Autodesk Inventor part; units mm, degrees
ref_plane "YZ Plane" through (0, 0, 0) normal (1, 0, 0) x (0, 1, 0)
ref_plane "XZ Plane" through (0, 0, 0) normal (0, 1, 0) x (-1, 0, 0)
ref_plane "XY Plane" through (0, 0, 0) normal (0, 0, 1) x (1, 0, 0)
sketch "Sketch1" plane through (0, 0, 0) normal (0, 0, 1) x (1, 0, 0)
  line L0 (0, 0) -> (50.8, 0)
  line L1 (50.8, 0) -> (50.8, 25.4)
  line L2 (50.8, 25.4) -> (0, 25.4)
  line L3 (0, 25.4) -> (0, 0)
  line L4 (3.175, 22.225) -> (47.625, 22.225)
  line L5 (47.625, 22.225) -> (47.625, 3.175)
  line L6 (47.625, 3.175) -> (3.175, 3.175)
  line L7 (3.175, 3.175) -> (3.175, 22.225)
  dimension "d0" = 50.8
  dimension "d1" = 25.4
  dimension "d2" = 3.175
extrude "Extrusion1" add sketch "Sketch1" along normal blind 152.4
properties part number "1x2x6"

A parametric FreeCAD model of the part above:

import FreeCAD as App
import Part
import Sketcher

V = App.Vector
Q = App.Units.Quantity


def add_polygon(sketch, points):
    """Adds a closed chain of lines whose ends are joined by coincident constraints."""
    first, n = sketch.GeometryCount, len(points)
    for a, b in zip(points, points[1:] + points[:1]):
        sketch.addGeometry(Part.LineSegment(App.Vector(*a, 0), App.Vector(*b, 0)), False)
    for i in range(n):
        sketch.addConstraint(Sketcher.Constraint("Coincident", first + i, 2, first + (i + 1) % n, 1))

doc = App.newDocument("Part")
params = doc.addObject("Spreadsheet::Sheet", "Params")
for row, (alias, value) in enumerate([
    ("sketch1_width", "2 in"),
    ("sketch1_height", "1 in"),
    ("pad1_length", "6 in"),
], start=1):
    params.set(f"A{row}", alias)
    params.set(f"B{row}", "=" + value)
    params.setAlias(f"B{row}", alias)

body = doc.addObject("PartDesign::Body", "Body")

# Sketch on XY plane
sketch1 = doc.addObject("Sketcher::SketchObject", "Sketch")
body.addObject(sketch1)
sketch1.AttachmentSupport = (doc.XY_Plane, [""])
sketch1.MapMode = "FlatFace"
add_polygon(sketch1, [(0, 25.4), (0, 0), (50.8, 0), (50.8, 25.4)])  # lines 0-3
add_polygon(sketch1, [(3.175, 3.175), (3.175, 22.225), (47.625, 22.225), (47.625, 3.175)])  # lines 4-7
sketch1.addConstraint([
    Sketcher.Constraint("Vertical", 0),
    Sketcher.Constraint("Horizontal", 1),
    Sketcher.Constraint("Vertical", 2),
    Sketcher.Constraint("Horizontal", 3),
    Sketcher.Constraint("Vertical", 4),
    Sketcher.Constraint("Horizontal", 5),
    Sketcher.Constraint("Vertical", 6),
    Sketcher.Constraint("Horizontal", 7),
    Sketcher.Constraint("Coincident", 0, 2, -1, 1),
    Sketcher.Constraint("DistanceX", 1, 1, 1, 2, Q("2 in")),
    Sketcher.Constraint("DistanceY", 0, 2, 0, 1, Q("1 in")),
    Sketcher.Constraint("DistanceX", -1, 1, 4, 2, Q("0.125 in")),
    Sketcher.Constraint("DistanceY", -1, 1, 6, 2, Q("0.125 in")),
    Sketcher.Constraint("DistanceY", 4, 2, 3, 2, Q("0.125 in")),
    Sketcher.Constraint("DistanceX", 5, 2, 2, 2, Q("0.125 in")),
])
sketch1.setExpression("Constraints[17]", "Params.sketch1_width")
sketch1.setExpression("Constraints[18]", "Params.sketch1_height")
pad1 = doc.addObject("PartDesign::Pad", "Pad")
body.addObject(pad1)
pad1.Profile = sketch1
pad1.setExpression("Length", "Params.pad1_length")

doc.recompute()
